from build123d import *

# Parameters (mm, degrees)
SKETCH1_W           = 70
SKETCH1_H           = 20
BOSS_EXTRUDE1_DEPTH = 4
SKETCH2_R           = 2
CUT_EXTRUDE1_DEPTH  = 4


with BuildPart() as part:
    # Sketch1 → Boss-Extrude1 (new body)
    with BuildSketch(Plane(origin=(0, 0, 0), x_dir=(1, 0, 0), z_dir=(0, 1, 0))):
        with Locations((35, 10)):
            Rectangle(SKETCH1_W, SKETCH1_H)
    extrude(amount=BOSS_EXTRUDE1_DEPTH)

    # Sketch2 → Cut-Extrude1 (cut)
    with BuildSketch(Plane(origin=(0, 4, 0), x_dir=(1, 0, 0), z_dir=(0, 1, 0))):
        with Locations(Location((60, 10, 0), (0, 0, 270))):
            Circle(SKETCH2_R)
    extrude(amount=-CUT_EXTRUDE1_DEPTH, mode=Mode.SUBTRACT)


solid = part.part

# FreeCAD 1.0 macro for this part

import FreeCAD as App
import Part
import Sketcher

V = App.Vector
Q = App.Units.Quantity

doc = App.newDocument("Part")
body = doc.addObject("PartDesign::Body", "Body")

sketch1 = body.newObject("Sketcher::SketchObject", "Sketch")
sketch1.AttachmentSupport = (doc.getObject("XZ_Plane"), [""])
sketch1.MapMode = "FlatFace"
sketch1.addGeometry([
    Part.LineSegment(V(0, -20, 0), V(0, 0, 0)),
    Part.LineSegment(V(0, 0, 0), V(70, 0, 0)),
    Part.LineSegment(V(70, 0, 0), V(70, -20, 0)),
    Part.LineSegment(V(70, -20, 0), V(0, -20, 0)),
], False)
sketch1.addConstraint([
    Sketcher.Constraint("Coincident", 0, 2, 1, 1),
    Sketcher.Constraint("Coincident", 1, 2, 2, 1),
    Sketcher.Constraint("Coincident", 2, 2, 3, 1),
    Sketcher.Constraint("Coincident", 3, 2, 0, 1),
    Sketcher.Constraint("Vertical", 0),
    Sketcher.Constraint("Horizontal", 1),
    Sketcher.Constraint("Vertical", 2),
    Sketcher.Constraint("Horizontal", 3),
    Sketcher.Constraint("Coincident", 0, 2, -1, 1),
    Sketcher.Constraint("DistanceX", 1, 1, 1, 2, Q("70 mm")),
    Sketcher.Constraint("DistanceY", 0, 1, 0, 2, Q("20 mm")),
])
pad1 = body.newObject("PartDesign::Pad", "Pad")
pad1.Profile = sketch1
pad1.Length = 4
pad1.Reversed = True

sketch2 = body.newObject("Sketcher::SketchObject", "Sketch001")
sketch2.AttachmentSupport = (doc.getObject("XZ_Plane"), [""])
sketch2.MapMode = "FlatFace"
sketch2.AttachmentOffset = App.Placement(V(0, 0, -4), App.Rotation())
sketch2.addGeometry(Part.Circle(V(60, -10, 0), V(0, 0, 1), 2), False)
sketch2.addConstraint([
    Sketcher.Constraint("Diameter", 0, Q("4 mm")),
    Sketcher.Constraint("DistanceX", -1, 1, 0, 3, Q("60 mm")),
    Sketcher.Constraint("DistanceY", 0, 3, -1, 1, Q("10 mm")),
])
pocket1 = body.newObject("PartDesign::Pocket", "Pocket")
pocket1.Profile = sketch2
pocket1.Length = 4
pocket1.Reversed = True

doc.recompute()
